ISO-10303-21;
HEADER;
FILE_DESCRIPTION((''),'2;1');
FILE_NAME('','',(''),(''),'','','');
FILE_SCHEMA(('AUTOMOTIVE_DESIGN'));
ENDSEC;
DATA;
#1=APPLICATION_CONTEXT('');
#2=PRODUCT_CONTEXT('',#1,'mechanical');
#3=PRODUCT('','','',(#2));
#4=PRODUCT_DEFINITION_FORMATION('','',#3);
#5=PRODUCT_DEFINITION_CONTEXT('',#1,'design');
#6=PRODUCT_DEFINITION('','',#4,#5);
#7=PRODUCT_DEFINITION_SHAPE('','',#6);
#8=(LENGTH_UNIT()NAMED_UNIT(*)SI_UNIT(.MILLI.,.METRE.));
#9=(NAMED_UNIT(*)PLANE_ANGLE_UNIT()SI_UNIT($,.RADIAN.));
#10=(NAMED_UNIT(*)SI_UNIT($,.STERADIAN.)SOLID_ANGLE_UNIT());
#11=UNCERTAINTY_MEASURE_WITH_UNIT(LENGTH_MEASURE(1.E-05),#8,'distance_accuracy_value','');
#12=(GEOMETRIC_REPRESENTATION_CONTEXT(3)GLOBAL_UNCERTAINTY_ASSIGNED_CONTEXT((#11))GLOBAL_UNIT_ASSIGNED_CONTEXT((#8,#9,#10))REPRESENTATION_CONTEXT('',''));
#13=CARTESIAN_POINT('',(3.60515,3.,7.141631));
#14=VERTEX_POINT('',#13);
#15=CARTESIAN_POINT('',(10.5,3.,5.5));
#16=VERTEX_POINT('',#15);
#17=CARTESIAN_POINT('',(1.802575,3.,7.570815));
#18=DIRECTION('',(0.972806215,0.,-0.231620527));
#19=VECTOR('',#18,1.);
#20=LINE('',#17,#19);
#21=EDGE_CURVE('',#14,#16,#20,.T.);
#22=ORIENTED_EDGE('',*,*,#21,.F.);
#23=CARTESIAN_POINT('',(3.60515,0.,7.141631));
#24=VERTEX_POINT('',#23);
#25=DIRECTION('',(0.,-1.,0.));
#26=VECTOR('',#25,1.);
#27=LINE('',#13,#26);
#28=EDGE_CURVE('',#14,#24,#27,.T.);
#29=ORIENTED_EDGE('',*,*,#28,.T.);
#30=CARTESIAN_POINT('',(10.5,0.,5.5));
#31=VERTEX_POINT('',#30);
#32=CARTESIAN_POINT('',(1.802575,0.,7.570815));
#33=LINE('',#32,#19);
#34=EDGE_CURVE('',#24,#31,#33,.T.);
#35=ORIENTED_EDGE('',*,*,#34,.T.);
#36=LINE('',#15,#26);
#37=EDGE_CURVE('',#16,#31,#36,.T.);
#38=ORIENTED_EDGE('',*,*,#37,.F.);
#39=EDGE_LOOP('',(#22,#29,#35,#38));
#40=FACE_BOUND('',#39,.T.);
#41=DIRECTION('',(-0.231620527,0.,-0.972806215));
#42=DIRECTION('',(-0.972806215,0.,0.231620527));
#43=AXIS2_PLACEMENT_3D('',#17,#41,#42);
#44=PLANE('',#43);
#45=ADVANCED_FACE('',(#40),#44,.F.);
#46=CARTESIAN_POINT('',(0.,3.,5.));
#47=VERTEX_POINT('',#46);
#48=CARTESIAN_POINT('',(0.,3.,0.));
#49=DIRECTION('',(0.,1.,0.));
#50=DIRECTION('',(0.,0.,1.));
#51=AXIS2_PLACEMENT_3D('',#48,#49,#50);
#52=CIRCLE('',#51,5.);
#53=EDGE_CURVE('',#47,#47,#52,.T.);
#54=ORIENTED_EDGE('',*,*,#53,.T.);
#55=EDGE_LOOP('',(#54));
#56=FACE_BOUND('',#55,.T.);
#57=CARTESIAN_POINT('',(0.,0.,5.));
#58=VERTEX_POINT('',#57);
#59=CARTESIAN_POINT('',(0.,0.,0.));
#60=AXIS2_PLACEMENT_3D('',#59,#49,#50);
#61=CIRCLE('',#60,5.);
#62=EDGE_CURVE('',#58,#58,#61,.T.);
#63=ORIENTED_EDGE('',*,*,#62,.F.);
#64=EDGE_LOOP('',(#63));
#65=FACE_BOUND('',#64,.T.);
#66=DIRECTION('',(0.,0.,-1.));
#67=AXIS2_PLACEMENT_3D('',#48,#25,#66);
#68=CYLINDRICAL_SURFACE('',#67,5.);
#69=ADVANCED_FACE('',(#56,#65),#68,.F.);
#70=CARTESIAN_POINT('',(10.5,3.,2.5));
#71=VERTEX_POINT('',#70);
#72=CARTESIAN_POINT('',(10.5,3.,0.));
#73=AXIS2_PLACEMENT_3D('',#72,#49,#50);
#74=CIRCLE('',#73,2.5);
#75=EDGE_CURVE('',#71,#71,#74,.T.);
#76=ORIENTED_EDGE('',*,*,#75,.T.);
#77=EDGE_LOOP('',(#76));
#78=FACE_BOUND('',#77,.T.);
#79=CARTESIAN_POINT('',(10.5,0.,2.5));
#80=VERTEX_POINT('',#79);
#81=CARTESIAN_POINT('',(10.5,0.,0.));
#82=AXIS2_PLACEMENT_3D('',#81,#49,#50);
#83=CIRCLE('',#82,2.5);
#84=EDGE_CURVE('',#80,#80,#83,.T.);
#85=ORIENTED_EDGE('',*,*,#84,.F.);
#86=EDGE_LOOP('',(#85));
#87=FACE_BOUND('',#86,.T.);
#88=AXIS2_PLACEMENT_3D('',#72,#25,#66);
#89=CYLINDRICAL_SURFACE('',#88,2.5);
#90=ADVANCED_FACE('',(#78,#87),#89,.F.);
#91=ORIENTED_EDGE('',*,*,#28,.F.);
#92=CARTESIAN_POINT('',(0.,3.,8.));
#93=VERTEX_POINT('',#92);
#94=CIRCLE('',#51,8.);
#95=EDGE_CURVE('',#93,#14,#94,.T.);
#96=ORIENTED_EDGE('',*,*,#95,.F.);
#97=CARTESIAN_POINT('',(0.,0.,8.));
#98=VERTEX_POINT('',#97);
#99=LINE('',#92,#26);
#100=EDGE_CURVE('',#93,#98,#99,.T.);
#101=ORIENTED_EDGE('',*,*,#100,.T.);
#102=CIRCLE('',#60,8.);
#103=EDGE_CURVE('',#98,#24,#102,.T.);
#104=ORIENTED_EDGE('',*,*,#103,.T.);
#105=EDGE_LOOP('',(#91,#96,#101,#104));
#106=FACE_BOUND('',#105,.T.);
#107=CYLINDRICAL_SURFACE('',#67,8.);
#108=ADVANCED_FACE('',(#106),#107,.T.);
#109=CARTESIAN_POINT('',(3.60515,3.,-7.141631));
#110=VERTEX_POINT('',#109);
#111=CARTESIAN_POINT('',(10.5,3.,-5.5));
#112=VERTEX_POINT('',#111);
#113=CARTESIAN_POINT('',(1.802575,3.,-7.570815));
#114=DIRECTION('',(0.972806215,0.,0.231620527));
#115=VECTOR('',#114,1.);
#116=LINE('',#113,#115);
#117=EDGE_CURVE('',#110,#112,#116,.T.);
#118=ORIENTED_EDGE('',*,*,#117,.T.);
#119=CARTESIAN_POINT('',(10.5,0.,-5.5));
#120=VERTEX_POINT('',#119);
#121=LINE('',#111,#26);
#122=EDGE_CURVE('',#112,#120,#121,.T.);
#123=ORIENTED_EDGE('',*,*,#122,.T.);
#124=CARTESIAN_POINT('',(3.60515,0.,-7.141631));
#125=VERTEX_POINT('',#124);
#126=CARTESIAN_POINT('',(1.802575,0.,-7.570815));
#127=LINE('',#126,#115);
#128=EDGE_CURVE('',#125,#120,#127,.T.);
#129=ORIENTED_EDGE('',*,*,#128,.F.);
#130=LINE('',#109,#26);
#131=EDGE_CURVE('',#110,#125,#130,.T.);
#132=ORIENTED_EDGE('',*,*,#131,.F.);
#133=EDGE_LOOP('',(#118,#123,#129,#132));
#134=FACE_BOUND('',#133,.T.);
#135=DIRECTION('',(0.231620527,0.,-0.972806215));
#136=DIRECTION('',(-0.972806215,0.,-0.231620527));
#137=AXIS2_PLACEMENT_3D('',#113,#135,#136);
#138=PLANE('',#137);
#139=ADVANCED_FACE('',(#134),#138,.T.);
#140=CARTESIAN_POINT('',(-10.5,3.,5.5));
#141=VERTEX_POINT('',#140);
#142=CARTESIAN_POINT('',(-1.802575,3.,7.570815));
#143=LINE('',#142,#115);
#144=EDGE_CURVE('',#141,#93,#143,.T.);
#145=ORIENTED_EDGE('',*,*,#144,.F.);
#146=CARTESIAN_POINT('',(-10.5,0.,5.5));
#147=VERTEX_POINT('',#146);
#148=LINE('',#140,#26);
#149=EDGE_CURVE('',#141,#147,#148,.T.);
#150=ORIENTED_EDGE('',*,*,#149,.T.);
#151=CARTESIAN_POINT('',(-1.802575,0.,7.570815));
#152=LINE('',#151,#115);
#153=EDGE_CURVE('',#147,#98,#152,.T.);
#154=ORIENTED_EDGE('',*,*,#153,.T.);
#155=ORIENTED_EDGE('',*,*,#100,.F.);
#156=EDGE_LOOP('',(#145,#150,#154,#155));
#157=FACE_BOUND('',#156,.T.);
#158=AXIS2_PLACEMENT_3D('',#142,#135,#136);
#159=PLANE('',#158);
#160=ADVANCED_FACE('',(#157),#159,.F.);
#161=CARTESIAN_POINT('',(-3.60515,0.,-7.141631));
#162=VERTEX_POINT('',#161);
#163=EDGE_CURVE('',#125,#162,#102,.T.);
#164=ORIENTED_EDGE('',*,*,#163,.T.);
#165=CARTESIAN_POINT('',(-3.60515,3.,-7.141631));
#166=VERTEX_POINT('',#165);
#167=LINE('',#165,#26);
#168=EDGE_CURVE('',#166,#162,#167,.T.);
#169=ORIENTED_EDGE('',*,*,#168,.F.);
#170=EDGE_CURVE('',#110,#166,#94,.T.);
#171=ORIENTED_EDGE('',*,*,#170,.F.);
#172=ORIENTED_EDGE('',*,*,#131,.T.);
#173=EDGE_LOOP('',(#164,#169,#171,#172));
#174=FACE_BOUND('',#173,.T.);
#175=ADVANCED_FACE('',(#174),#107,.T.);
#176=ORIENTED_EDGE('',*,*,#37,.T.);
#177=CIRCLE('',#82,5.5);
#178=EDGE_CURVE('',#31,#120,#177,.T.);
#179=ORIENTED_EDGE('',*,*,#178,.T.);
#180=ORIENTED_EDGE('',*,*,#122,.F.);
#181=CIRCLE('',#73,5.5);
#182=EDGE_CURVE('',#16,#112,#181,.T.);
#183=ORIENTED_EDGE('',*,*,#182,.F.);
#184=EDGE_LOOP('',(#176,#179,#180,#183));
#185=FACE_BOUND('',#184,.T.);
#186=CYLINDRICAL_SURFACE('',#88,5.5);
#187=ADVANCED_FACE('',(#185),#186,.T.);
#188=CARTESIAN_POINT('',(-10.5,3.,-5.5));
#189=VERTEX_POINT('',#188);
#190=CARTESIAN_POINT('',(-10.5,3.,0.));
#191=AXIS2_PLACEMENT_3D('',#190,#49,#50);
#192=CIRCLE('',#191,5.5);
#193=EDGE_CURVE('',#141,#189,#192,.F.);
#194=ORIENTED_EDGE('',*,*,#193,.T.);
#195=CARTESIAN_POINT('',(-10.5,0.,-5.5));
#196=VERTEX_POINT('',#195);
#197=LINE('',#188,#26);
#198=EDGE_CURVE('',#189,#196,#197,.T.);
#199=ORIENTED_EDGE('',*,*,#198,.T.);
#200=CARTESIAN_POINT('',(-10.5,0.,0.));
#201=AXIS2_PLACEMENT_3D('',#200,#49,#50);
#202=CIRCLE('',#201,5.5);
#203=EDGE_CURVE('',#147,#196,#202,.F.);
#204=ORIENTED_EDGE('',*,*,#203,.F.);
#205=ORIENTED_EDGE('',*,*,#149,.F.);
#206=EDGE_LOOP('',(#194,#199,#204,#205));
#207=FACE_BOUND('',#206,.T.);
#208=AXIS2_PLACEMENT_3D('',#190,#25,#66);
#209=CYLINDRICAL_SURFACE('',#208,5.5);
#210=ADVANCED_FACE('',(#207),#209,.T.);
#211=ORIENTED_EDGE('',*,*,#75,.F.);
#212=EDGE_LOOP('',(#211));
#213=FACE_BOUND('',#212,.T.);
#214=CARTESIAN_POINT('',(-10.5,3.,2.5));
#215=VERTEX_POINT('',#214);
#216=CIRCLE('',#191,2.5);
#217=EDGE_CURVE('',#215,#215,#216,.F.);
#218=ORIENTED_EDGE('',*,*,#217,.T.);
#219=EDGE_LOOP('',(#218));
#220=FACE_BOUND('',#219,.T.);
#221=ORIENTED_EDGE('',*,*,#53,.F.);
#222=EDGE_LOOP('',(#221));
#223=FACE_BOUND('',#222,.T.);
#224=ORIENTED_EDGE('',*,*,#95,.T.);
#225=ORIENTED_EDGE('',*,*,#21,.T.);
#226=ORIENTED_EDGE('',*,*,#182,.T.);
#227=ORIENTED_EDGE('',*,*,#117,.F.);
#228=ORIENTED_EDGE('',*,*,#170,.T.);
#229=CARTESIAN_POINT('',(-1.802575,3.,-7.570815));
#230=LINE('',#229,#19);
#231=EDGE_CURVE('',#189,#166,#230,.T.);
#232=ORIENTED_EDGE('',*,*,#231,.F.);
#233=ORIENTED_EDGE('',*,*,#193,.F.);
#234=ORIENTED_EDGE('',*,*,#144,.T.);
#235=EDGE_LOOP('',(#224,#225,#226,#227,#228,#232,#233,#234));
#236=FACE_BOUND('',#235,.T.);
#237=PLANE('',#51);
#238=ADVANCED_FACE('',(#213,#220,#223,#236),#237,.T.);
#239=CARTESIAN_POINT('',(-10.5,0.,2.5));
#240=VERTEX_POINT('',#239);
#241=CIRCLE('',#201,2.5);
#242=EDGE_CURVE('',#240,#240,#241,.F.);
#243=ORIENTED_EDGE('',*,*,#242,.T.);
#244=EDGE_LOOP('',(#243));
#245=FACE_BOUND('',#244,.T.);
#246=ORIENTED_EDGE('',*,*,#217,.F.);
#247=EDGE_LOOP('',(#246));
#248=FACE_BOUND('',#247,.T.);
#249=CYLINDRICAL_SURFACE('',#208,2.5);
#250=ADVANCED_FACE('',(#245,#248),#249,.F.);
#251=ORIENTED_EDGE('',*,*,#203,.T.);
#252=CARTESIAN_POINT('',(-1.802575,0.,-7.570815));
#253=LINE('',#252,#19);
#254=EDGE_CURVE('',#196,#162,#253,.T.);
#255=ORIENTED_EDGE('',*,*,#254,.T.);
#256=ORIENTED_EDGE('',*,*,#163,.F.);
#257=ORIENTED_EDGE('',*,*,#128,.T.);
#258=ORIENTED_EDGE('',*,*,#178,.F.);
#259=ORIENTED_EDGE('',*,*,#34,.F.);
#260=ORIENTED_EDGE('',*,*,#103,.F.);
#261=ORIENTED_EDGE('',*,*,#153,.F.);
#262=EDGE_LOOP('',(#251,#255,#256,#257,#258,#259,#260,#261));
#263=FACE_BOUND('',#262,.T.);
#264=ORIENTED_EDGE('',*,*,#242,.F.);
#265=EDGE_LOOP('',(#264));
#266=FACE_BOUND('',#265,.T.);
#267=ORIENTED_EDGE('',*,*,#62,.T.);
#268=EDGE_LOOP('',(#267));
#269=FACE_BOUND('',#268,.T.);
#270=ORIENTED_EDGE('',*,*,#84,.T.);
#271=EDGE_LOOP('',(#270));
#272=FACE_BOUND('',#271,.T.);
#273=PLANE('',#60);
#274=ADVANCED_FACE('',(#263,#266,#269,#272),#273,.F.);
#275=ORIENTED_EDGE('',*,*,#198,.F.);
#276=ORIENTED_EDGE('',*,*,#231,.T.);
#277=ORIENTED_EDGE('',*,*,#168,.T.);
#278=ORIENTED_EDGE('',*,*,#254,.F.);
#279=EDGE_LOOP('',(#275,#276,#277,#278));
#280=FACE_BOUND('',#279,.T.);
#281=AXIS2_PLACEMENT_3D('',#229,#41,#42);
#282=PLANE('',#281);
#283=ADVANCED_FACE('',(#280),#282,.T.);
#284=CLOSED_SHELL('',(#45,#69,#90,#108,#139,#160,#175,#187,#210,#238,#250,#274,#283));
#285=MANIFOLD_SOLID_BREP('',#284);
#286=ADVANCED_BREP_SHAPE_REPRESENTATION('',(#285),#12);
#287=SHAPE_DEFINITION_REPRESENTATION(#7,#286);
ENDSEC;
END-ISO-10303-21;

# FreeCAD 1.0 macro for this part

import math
import FreeCAD as App
import Part
import Sketcher
from FreeCAD import Vector
Q = App.Units.Quantity

doc = App.newDocument("Part")
body = doc.addObject("PartDesign::Body", "Body")

sketch1 = doc.addObject("Sketcher::SketchObject", "Sketch")
body.addObject(sketch1)
sketch1.AttachmentSupport = (doc.XZ_Plane, [""])
sketch1.MapMode = "FlatFace"
sketch1.addGeometry([
    Part.ArcOfCircle(Part.Circle(Vector(0, 0, 0), Vector(0, 0, 1), 8), math.radians(63), math.radians(90)),
    Part.LineSegment(Vector(3.6, 7.1, 0), Vector(10.5, 5.5, 0)),
    Part.ArcOfCircle(Part.Circle(Vector(10.5, 0, 0), Vector(0, 0, 1), 5.5), math.radians(-90), math.radians(90)),
    Part.LineSegment(Vector(10.5, -5.5, 0), Vector(3.6, -7.1, 0)),
    Part.ArcOfCircle(Part.Circle(Vector(0, 0, 0), Vector(0, 0, 1), 8), math.radians(-117), math.radians(-63)),
    Part.LineSegment(Vector(-3.6, -7.1, 0), Vector(-10.5, -5.5, 0)),
    Part.ArcOfCircle(Part.Circle(Vector(-10.5, 0, 0), Vector(0, 0, 1), 5.5), math.radians(90), math.radians(270)),
    Part.LineSegment(Vector(-10.5, 5.5, 0), Vector(0, 8, 0)),
    Part.Circle(Vector(-10.5, 0, 0), Vector(0, 0, 1), 2.5),
    Part.Circle(Vector(0, 0, 0), Vector(0, 0, 1), 5),
    Part.Circle(Vector(10.5, 0, 0), Vector(0, 0, 1), 2.5),
], False)
sketch1.addConstraint([
    Sketcher.Constraint("Coincident", 0, 1, 1, 1),
    Sketcher.Constraint("Coincident", 1, 2, 2, 2),
    Sketcher.Constraint("Coincident", 2, 1, 3, 1),
    Sketcher.Constraint("Coincident", 3, 2, 4, 2),
    Sketcher.Constraint("Coincident", 4, 1, 5, 1),
    Sketcher.Constraint("Coincident", 5, 2, 6, 2),
    Sketcher.Constraint("Coincident", 6, 1, 7, 1),
    Sketcher.Constraint("Coincident", 7, 2, 0, 2),
    Sketcher.Constraint("Coincident", 0, 3, -1, 1),
    Sketcher.Constraint("Coincident", 4, 3, -1, 1),
    Sketcher.Constraint("Coincident", 9, 3, -1, 1),
    Sketcher.Constraint("Coincident", 8, 3, 6, 3),
    Sketcher.Constraint("Coincident", 10, 3, 2, 3),
    Sketcher.Constraint("Equal", 0, 4),
    Sketcher.Constraint("Equal", 2, 6),
    Sketcher.Constraint("Equal", 8, 10),
    Sketcher.Constraint("Symmetric", 2, 3, 6, 3, -1, 1),
    Sketcher.Constraint("Symmetric", 2, 1, 5, 2, -2),
    Sketcher.Constraint("PointOnObject", 7, 2, -2),
    Sketcher.Constraint("Parallel", 1, 5),
    Sketcher.Constraint("Parallel", 3, 7),
    Sketcher.Constraint("Horizontal", 3, 2, 4, 1),
    Sketcher.Constraint("Vertical", 10, 3, 1, 2),
    Sketcher.Constraint("Vertical", 1, 2, 2, 1),
    Sketcher.Constraint("Vertical", 5, 2, 6, 1),
    Sketcher.Constraint("Diameter", 8, Q("5 mm")),
    Sketcher.Constraint("Diameter", 9, Q("10 mm")),
    Sketcher.Constraint("Radius", 0, Q("8 mm")),
    Sketcher.Constraint("Radius", 2, Q("5.5 mm")),
    Sketcher.Constraint("DistanceX", 6, 3, 2, 3, Q("21 mm")),
])
pad1 = doc.addObject("PartDesign::Pad", "Pad")
body.addObject(pad1)
pad1.Profile = sketch1
pad1.Length = 3
pad1.Reversed = True

doc.recompute()
